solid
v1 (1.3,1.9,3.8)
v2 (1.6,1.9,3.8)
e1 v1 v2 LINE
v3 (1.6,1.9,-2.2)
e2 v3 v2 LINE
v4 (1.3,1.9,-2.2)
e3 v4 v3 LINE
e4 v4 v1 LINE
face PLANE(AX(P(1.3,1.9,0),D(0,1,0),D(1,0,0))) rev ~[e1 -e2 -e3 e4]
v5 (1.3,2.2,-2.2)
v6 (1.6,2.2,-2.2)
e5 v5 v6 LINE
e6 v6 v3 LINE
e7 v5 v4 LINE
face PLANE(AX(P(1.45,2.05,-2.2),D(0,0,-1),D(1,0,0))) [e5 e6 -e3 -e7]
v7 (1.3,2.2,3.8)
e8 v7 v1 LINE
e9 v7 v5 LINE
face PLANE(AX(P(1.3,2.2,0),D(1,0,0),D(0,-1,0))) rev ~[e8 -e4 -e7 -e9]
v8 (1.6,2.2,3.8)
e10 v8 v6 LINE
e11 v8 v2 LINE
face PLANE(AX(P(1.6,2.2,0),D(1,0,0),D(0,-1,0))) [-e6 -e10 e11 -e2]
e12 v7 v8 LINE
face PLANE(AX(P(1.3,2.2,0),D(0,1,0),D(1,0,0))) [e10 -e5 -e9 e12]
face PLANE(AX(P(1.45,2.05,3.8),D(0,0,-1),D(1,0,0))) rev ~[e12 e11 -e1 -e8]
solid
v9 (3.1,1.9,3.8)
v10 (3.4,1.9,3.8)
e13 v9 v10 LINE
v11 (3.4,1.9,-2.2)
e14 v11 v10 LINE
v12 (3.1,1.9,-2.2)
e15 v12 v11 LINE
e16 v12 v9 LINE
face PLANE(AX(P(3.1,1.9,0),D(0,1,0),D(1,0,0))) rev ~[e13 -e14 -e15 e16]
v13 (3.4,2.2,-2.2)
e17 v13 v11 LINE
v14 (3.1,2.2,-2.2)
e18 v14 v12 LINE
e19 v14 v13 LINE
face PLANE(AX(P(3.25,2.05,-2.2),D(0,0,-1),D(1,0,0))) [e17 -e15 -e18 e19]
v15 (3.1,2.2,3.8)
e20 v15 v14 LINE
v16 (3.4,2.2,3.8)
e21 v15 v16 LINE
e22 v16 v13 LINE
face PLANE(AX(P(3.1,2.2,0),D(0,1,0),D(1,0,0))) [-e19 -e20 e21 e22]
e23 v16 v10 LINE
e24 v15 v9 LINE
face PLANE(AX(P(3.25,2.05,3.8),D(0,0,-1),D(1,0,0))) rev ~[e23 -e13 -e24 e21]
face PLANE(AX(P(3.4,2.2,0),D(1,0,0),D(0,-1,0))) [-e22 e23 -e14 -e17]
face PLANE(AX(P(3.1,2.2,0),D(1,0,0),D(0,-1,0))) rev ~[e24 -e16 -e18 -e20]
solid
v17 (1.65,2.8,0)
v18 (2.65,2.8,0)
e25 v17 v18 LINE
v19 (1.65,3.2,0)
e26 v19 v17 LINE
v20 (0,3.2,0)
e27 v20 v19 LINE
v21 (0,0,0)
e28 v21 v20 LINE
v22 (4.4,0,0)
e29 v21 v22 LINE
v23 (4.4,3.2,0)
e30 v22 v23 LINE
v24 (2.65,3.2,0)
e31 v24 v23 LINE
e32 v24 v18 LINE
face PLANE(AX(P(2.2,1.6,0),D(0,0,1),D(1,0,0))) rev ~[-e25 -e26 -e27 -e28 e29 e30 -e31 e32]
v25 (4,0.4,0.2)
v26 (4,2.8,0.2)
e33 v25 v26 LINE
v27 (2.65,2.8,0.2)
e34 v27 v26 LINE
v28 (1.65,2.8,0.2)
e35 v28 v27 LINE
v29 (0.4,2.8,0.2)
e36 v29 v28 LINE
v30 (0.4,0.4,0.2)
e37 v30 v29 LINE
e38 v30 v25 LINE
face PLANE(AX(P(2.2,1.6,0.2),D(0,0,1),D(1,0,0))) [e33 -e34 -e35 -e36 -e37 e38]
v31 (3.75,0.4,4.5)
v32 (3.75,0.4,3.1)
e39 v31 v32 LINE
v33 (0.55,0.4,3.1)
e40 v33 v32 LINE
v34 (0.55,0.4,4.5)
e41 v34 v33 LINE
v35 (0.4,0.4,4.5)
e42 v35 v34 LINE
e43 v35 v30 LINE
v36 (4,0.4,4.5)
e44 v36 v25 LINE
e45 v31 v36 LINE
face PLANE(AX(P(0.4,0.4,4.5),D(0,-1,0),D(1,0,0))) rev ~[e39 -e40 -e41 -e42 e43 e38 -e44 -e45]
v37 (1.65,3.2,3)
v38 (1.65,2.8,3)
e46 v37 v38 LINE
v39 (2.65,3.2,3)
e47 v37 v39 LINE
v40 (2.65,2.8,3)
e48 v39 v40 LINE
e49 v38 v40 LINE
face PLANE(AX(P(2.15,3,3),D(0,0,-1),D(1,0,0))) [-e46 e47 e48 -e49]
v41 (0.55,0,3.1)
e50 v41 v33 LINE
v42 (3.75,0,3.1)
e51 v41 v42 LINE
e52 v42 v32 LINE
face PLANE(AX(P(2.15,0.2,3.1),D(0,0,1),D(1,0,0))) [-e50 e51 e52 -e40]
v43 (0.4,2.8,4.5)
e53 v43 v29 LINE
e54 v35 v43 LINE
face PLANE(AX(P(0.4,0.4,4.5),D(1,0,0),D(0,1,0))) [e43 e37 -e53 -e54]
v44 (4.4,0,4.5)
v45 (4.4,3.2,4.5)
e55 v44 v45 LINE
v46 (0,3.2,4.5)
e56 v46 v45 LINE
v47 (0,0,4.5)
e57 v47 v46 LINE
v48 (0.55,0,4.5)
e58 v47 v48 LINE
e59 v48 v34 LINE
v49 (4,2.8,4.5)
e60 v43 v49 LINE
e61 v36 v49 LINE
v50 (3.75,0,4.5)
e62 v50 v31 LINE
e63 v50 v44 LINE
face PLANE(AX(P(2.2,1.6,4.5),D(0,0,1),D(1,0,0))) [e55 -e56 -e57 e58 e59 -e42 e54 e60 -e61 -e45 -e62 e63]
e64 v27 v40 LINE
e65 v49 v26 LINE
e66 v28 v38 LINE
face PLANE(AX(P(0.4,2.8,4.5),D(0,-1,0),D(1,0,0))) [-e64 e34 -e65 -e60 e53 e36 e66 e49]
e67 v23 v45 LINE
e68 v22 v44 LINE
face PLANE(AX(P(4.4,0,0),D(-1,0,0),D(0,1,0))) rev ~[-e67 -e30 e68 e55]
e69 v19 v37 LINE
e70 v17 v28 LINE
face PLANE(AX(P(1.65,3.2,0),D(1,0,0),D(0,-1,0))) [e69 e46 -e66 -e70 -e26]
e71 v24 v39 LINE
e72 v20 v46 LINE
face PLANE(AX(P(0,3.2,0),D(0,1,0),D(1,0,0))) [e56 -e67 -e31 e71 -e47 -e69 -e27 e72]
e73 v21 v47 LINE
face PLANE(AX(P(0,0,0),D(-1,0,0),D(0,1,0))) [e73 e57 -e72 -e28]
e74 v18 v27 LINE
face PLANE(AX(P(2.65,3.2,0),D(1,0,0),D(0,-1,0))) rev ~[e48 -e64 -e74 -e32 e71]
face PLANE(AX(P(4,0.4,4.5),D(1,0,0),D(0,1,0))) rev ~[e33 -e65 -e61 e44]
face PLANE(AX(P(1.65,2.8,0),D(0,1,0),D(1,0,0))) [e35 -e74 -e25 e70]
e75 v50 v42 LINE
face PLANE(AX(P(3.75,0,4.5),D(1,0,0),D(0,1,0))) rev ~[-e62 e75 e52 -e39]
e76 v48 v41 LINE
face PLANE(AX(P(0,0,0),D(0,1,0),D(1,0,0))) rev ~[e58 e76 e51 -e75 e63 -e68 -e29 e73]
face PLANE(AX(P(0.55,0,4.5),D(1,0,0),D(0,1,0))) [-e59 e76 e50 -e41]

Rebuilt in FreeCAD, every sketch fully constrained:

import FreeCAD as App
import Part
import Sketcher

doc = App.newDocument("Part")
body = doc.addObject("PartDesign::Body", "Body")

sketch1 = body.newObject("Sketcher::SketchObject", "Sketch")
sketch1.AttachmentSupport = (doc.getObject("XY_Plane"), [""])
sketch1.MapMode = "FlatFace"
sketch1.addGeometry(Part.LineSegment(App.Vector(0, 3.2, 0), App.Vector(0, 0, 0)), False)
sketch1.addGeometry(Part.LineSegment(App.Vector(0, 0, 0), App.Vector(4.4, 0, 0)), False)
sketch1.addGeometry(Part.LineSegment(App.Vector(4.4, 0, 0), App.Vector(4.4, 3.2, 0)), False)
sketch1.addGeometry(Part.LineSegment(App.Vector(4.4, 3.2, 0), App.Vector(0, 3.2, 0)), False)
sketch1.addConstraint(Sketcher.Constraint("Coincident", 0, 2, 1, 1))
sketch1.addConstraint(Sketcher.Constraint("Coincident", 1, 2, 2, 1))
sketch1.addConstraint(Sketcher.Constraint("Coincident", 2, 2, 3, 1))
sketch1.addConstraint(Sketcher.Constraint("Coincident", 3, 2, 0, 1))
sketch1.addConstraint(Sketcher.Constraint("Vertical", 0))
sketch1.addConstraint(Sketcher.Constraint("Horizontal", 1))
sketch1.addConstraint(Sketcher.Constraint("Vertical", 2))
sketch1.addConstraint(Sketcher.Constraint("Horizontal", 3))
sketch1.addConstraint(Sketcher.Constraint("Coincident", 0, 2, -1, 1))
sketch1.addConstraint(Sketcher.Constraint("DistanceX", 1, 1, 1, 2, 4.4))
sketch1.addConstraint(Sketcher.Constraint("DistanceY", 0, 2, 0, 1, 3.2))
pad1 = body.newObject("PartDesign::Pad", "Pad")
pad1.Profile = sketch1
pad1.Length = 4.5

sketch2 = body.newObject("Sketcher::SketchObject", "Sketch001")
sketch2.AttachmentSupport = (doc.getObject("XY_Plane"), [""])
sketch2.MapMode = "FlatFace"
sketch2.AttachmentOffset = App.Placement(App.Vector(0, 0, 4.5), App.Rotation())
sketch2.addGeometry(Part.LineSegment(App.Vector(0.4, 2.8, 0), App.Vector(0.4, 0.4, 0)), False)
sketch2.addGeometry(Part.LineSegment(App.Vector(0.4, 0.4, 0), App.Vector(4, 0.4, 0)), False)
sketch2.addGeometry(Part.LineSegment(App.Vector(4, 0.4, 0), App.Vector(4, 2.8, 0)), False)
sketch2.addGeometry(Part.LineSegment(App.Vector(4, 2.8, 0), App.Vector(0.4, 2.8, 0)), False)
sketch2.addConstraint(Sketcher.Constraint("Coincident", 0, 2, 1, 1))
sketch2.addConstraint(Sketcher.Constraint("Coincident", 1, 2, 2, 1))
sketch2.addConstraint(Sketcher.Constraint("Coincident", 2, 2, 3, 1))
sketch2.addConstraint(Sketcher.Constraint("Coincident", 3, 2, 0, 1))
sketch2.addConstraint(Sketcher.Constraint("Vertical", 0))
sketch2.addConstraint(Sketcher.Constraint("Horizontal", 1))
sketch2.addConstraint(Sketcher.Constraint("Vertical", 2))
sketch2.addConstraint(Sketcher.Constraint("Horizontal", 3))
sketch2.addConstraint(Sketcher.Constraint("DistanceX", 1, 1, 1, 2, 3.6))
sketch2.addConstraint(Sketcher.Constraint("DistanceY", 0, 2, 0, 1, 2.4))
sketch2.addConstraint(Sketcher.Constraint("DistanceX", -1, 1, 1, 2, 4.0))
sketch2.addConstraint(Sketcher.Constraint("DistanceY", -1, 1, 0, 2, 0.4))
pocket1 = body.newObject("PartDesign::Pocket", "Pocket")
pocket1.Profile = sketch2
pocket1.Length = 4.3

sketch3 = body.newObject("Sketcher::SketchObject", "Sketch002")
sketch3.AttachmentSupport = (doc.getObject("XY_Plane"), [""])
sketch3.MapMode = "FlatFace"
sketch3.AttachmentOffset = App.Placement(App.Vector(0, 0, 4.5), App.Rotation())
sketch3.addGeometry(Part.LineSegment(App.Vector(0.55, 0.4, 0), App.Vector(0.55, 0, 0)), False)
sketch3.addGeometry(Part.LineSegment(App.Vector(0.55, 0, 0), App.Vector(3.75, 0, 0)), False)
sketch3.addGeometry(Part.LineSegment(App.Vector(3.75, 0, 0), App.Vector(3.75, 0.4, 0)), False)
sketch3.addGeometry(Part.LineSegment(App.Vector(3.75, 0.4, 0), App.Vector(0.55, 0.4, 0)), False)
sketch3.addConstraint(Sketcher.Constraint("Coincident", 0, 2, 1, 1))
sketch3.addConstraint(Sketcher.Constraint("Coincident", 1, 2, 2, 1))
sketch3.addConstraint(Sketcher.Constraint("Coincident", 2, 2, 3, 1))
sketch3.addConstraint(Sketcher.Constraint("Coincident", 3, 2, 0, 1))
sketch3.addConstraint(Sketcher.Constraint("Vertical", 0))
sketch3.addConstraint(Sketcher.Constraint("Horizontal", 1))
sketch3.addConstraint(Sketcher.Constraint("Vertical", 2))
sketch3.addConstraint(Sketcher.Constraint("Horizontal", 3))
sketch3.addConstraint(Sketcher.Constraint("PointOnObject", 0, 2, -1))
sketch3.addConstraint(Sketcher.Constraint("DistanceX", 1, 1, 1, 2, 3.2))
sketch3.addConstraint(Sketcher.Constraint("DistanceY", 0, 2, 0, 1, 0.4))
sketch3.addConstraint(Sketcher.Constraint("DistanceX", -1, 1, 0, 2, 0.55))
pocket2 = body.newObject("PartDesign::Pocket", "Pocket001")
pocket2.Profile = sketch3
pocket2.Length = 1.4

sketch4 = body.newObject("Sketcher::SketchObject", "Sketch003")
sketch4.AttachmentSupport = (doc.getObject("XY_Plane"), [""])
sketch4.MapMode = "FlatFace"
sketch4.addGeometry(Part.LineSegment(App.Vector(1.65, 2.8, 0), App.Vector(1.65, 3.2, 0)), False)
sketch4.addGeometry(Part.LineSegment(App.Vector(1.65, 3.2, 0), App.Vector(2.65, 3.2, 0)), False)
sketch4.addGeometry(Part.LineSegment(App.Vector(2.65, 3.2, 0), App.Vector(2.65, 2.8, 0)), False)
sketch4.addGeometry(Part.LineSegment(App.Vector(2.65, 2.8, 0), App.Vector(1.65, 2.8, 0)), False)
sketch4.addConstraint(Sketcher.Constraint("Coincident", 0, 2, 1, 1))
sketch4.addConstraint(Sketcher.Constraint("Coincident", 1, 2, 2, 1))
sketch4.addConstraint(Sketcher.Constraint("Coincident", 2, 2, 3, 1))
sketch4.addConstraint(Sketcher.Constraint("Coincident", 3, 2, 0, 1))
sketch4.addConstraint(Sketcher.Constraint("Vertical", 0))
sketch4.addConstraint(Sketcher.Constraint("Horizontal", 1))
sketch4.addConstraint(Sketcher.Constraint("Vertical", 2))
sketch4.addConstraint(Sketcher.Constraint("Horizontal", 3))
sketch4.addConstraint(Sketcher.Constraint("DistanceX", 1, 1, 1, 2, 1.0))
sketch4.addConstraint(Sketcher.Constraint("DistanceY", 0, 1, 0, 2, 0.4))
sketch4.addConstraint(Sketcher.Constraint("DistanceY", -1, 1, 0, 2, 3.2))
sketch4.addConstraint(Sketcher.Constraint("DistanceX", -1, 1, 0, 2, 1.65))
pocket3 = body.newObject("PartDesign::Pocket", "Pocket002")
pocket3.Profile = sketch4
pocket3.Length = 3
pocket3.Reversed = True
body2 = doc.addObject("PartDesign::Body", "Body001")
body2.AllowCompound = True

sketch5 = body2.newObject("Sketcher::SketchObject", "Sketch004")
sketch5.AttachmentSupport = (doc.getObject("XY_Plane001"), [""])
sketch5.MapMode = "FlatFace"
sketch5.addGeometry(Part.LineSegment(App.Vector(1.3, 1.9, 0), App.Vector(1.3, 2.2, 0)), False)
sketch5.addGeometry(Part.LineSegment(App.Vector(1.3, 2.2, 0), App.Vector(1.6, 2.2, 0)), False)
sketch5.addGeometry(Part.LineSegment(App.Vector(1.6, 2.2, 0), App.Vector(1.6, 1.9, 0)), False)
sketch5.addGeometry(Part.LineSegment(App.Vector(1.6, 1.9, 0), App.Vector(1.3, 1.9, 0)), False)
sketch5.addGeometry(Part.LineSegment(App.Vector(3.1, 1.9, 0), App.Vector(3.1, 2.2, 0)), False)
sketch5.addGeometry(Part.LineSegment(App.Vector(3.1, 2.2, 0), App.Vector(3.4, 2.2, 0)), False)
sketch5.addGeometry(Part.LineSegment(App.Vector(3.4, 2.2, 0), App.Vector(3.4, 1.9, 0)), False)
sketch5.addGeometry(Part.LineSegment(App.Vector(3.4, 1.9, 0), App.Vector(3.1, 1.9, 0)), False)
sketch5.addConstraint(Sketcher.Constraint("Coincident", 0, 2, 1, 1))
sketch5.addConstraint(Sketcher.Constraint("Coincident", 1, 2, 2, 1))
sketch5.addConstraint(Sketcher.Constraint("Coincident", 2, 2, 3, 1))
sketch5.addConstraint(Sketcher.Constraint("Coincident", 3, 2, 0, 1))
sketch5.addConstraint(Sketcher.Constraint("Coincident", 4, 2, 5, 1))
sketch5.addConstraint(Sketcher.Constraint("Coincident", 5, 2, 6, 1))
sketch5.addConstraint(Sketcher.Constraint("Coincident", 6, 2, 7, 1))
sketch5.addConstraint(Sketcher.Constraint("Coincident", 7, 2, 4, 1))
sketch5.addConstraint(Sketcher.Constraint("Vertical", 0))
sketch5.addConstraint(Sketcher.Constraint("Horizontal", 1))
sketch5.addConstraint(Sketcher.Constraint("Vertical", 2))
sketch5.addConstraint(Sketcher.Constraint("Horizontal", 3))
sketch5.addConstraint(Sketcher.Constraint("Vertical", 4))
sketch5.addConstraint(Sketcher.Constraint("Horizontal", 5))
sketch5.addConstraint(Sketcher.Constraint("Vertical", 6))
sketch5.addConstraint(Sketcher.Constraint("Horizontal", 7))
sketch5.addConstraint(Sketcher.Constraint("Horizontal", 1, 2, 4, 2))
sketch5.addConstraint(Sketcher.Constraint("Horizontal", 3, 2, 6, 2))
sketch5.addConstraint(Sketcher.Constraint("Equal", 3, 5))
sketch5.addConstraint(Sketcher.Constraint("Equal", 7, 0))
sketch5.addConstraint(Sketcher.Constraint("DistanceX", 1, 1, 1, 2, 0.3))
sketch5.addConstraint(Sketcher.Constraint("DistanceX", -1, 1, 0, 2, 1.3))
sketch5.addConstraint(Sketcher.Constraint("DistanceY", -1, 1, 0, 2, 2.2))
sketch5.addConstraint(Sketcher.Constraint("DistanceX", -1, 1, 4, 2, 3.1))
pad2 = body2.newObject("PartDesign::Pad", "Pad001")
pad2.Profile = sketch5
pad2.Type = "TwoLengths"
pad2.Length = 2.2
pad2.Length2 = 3.8
pad2.Reversed = True

doc.recompute()
